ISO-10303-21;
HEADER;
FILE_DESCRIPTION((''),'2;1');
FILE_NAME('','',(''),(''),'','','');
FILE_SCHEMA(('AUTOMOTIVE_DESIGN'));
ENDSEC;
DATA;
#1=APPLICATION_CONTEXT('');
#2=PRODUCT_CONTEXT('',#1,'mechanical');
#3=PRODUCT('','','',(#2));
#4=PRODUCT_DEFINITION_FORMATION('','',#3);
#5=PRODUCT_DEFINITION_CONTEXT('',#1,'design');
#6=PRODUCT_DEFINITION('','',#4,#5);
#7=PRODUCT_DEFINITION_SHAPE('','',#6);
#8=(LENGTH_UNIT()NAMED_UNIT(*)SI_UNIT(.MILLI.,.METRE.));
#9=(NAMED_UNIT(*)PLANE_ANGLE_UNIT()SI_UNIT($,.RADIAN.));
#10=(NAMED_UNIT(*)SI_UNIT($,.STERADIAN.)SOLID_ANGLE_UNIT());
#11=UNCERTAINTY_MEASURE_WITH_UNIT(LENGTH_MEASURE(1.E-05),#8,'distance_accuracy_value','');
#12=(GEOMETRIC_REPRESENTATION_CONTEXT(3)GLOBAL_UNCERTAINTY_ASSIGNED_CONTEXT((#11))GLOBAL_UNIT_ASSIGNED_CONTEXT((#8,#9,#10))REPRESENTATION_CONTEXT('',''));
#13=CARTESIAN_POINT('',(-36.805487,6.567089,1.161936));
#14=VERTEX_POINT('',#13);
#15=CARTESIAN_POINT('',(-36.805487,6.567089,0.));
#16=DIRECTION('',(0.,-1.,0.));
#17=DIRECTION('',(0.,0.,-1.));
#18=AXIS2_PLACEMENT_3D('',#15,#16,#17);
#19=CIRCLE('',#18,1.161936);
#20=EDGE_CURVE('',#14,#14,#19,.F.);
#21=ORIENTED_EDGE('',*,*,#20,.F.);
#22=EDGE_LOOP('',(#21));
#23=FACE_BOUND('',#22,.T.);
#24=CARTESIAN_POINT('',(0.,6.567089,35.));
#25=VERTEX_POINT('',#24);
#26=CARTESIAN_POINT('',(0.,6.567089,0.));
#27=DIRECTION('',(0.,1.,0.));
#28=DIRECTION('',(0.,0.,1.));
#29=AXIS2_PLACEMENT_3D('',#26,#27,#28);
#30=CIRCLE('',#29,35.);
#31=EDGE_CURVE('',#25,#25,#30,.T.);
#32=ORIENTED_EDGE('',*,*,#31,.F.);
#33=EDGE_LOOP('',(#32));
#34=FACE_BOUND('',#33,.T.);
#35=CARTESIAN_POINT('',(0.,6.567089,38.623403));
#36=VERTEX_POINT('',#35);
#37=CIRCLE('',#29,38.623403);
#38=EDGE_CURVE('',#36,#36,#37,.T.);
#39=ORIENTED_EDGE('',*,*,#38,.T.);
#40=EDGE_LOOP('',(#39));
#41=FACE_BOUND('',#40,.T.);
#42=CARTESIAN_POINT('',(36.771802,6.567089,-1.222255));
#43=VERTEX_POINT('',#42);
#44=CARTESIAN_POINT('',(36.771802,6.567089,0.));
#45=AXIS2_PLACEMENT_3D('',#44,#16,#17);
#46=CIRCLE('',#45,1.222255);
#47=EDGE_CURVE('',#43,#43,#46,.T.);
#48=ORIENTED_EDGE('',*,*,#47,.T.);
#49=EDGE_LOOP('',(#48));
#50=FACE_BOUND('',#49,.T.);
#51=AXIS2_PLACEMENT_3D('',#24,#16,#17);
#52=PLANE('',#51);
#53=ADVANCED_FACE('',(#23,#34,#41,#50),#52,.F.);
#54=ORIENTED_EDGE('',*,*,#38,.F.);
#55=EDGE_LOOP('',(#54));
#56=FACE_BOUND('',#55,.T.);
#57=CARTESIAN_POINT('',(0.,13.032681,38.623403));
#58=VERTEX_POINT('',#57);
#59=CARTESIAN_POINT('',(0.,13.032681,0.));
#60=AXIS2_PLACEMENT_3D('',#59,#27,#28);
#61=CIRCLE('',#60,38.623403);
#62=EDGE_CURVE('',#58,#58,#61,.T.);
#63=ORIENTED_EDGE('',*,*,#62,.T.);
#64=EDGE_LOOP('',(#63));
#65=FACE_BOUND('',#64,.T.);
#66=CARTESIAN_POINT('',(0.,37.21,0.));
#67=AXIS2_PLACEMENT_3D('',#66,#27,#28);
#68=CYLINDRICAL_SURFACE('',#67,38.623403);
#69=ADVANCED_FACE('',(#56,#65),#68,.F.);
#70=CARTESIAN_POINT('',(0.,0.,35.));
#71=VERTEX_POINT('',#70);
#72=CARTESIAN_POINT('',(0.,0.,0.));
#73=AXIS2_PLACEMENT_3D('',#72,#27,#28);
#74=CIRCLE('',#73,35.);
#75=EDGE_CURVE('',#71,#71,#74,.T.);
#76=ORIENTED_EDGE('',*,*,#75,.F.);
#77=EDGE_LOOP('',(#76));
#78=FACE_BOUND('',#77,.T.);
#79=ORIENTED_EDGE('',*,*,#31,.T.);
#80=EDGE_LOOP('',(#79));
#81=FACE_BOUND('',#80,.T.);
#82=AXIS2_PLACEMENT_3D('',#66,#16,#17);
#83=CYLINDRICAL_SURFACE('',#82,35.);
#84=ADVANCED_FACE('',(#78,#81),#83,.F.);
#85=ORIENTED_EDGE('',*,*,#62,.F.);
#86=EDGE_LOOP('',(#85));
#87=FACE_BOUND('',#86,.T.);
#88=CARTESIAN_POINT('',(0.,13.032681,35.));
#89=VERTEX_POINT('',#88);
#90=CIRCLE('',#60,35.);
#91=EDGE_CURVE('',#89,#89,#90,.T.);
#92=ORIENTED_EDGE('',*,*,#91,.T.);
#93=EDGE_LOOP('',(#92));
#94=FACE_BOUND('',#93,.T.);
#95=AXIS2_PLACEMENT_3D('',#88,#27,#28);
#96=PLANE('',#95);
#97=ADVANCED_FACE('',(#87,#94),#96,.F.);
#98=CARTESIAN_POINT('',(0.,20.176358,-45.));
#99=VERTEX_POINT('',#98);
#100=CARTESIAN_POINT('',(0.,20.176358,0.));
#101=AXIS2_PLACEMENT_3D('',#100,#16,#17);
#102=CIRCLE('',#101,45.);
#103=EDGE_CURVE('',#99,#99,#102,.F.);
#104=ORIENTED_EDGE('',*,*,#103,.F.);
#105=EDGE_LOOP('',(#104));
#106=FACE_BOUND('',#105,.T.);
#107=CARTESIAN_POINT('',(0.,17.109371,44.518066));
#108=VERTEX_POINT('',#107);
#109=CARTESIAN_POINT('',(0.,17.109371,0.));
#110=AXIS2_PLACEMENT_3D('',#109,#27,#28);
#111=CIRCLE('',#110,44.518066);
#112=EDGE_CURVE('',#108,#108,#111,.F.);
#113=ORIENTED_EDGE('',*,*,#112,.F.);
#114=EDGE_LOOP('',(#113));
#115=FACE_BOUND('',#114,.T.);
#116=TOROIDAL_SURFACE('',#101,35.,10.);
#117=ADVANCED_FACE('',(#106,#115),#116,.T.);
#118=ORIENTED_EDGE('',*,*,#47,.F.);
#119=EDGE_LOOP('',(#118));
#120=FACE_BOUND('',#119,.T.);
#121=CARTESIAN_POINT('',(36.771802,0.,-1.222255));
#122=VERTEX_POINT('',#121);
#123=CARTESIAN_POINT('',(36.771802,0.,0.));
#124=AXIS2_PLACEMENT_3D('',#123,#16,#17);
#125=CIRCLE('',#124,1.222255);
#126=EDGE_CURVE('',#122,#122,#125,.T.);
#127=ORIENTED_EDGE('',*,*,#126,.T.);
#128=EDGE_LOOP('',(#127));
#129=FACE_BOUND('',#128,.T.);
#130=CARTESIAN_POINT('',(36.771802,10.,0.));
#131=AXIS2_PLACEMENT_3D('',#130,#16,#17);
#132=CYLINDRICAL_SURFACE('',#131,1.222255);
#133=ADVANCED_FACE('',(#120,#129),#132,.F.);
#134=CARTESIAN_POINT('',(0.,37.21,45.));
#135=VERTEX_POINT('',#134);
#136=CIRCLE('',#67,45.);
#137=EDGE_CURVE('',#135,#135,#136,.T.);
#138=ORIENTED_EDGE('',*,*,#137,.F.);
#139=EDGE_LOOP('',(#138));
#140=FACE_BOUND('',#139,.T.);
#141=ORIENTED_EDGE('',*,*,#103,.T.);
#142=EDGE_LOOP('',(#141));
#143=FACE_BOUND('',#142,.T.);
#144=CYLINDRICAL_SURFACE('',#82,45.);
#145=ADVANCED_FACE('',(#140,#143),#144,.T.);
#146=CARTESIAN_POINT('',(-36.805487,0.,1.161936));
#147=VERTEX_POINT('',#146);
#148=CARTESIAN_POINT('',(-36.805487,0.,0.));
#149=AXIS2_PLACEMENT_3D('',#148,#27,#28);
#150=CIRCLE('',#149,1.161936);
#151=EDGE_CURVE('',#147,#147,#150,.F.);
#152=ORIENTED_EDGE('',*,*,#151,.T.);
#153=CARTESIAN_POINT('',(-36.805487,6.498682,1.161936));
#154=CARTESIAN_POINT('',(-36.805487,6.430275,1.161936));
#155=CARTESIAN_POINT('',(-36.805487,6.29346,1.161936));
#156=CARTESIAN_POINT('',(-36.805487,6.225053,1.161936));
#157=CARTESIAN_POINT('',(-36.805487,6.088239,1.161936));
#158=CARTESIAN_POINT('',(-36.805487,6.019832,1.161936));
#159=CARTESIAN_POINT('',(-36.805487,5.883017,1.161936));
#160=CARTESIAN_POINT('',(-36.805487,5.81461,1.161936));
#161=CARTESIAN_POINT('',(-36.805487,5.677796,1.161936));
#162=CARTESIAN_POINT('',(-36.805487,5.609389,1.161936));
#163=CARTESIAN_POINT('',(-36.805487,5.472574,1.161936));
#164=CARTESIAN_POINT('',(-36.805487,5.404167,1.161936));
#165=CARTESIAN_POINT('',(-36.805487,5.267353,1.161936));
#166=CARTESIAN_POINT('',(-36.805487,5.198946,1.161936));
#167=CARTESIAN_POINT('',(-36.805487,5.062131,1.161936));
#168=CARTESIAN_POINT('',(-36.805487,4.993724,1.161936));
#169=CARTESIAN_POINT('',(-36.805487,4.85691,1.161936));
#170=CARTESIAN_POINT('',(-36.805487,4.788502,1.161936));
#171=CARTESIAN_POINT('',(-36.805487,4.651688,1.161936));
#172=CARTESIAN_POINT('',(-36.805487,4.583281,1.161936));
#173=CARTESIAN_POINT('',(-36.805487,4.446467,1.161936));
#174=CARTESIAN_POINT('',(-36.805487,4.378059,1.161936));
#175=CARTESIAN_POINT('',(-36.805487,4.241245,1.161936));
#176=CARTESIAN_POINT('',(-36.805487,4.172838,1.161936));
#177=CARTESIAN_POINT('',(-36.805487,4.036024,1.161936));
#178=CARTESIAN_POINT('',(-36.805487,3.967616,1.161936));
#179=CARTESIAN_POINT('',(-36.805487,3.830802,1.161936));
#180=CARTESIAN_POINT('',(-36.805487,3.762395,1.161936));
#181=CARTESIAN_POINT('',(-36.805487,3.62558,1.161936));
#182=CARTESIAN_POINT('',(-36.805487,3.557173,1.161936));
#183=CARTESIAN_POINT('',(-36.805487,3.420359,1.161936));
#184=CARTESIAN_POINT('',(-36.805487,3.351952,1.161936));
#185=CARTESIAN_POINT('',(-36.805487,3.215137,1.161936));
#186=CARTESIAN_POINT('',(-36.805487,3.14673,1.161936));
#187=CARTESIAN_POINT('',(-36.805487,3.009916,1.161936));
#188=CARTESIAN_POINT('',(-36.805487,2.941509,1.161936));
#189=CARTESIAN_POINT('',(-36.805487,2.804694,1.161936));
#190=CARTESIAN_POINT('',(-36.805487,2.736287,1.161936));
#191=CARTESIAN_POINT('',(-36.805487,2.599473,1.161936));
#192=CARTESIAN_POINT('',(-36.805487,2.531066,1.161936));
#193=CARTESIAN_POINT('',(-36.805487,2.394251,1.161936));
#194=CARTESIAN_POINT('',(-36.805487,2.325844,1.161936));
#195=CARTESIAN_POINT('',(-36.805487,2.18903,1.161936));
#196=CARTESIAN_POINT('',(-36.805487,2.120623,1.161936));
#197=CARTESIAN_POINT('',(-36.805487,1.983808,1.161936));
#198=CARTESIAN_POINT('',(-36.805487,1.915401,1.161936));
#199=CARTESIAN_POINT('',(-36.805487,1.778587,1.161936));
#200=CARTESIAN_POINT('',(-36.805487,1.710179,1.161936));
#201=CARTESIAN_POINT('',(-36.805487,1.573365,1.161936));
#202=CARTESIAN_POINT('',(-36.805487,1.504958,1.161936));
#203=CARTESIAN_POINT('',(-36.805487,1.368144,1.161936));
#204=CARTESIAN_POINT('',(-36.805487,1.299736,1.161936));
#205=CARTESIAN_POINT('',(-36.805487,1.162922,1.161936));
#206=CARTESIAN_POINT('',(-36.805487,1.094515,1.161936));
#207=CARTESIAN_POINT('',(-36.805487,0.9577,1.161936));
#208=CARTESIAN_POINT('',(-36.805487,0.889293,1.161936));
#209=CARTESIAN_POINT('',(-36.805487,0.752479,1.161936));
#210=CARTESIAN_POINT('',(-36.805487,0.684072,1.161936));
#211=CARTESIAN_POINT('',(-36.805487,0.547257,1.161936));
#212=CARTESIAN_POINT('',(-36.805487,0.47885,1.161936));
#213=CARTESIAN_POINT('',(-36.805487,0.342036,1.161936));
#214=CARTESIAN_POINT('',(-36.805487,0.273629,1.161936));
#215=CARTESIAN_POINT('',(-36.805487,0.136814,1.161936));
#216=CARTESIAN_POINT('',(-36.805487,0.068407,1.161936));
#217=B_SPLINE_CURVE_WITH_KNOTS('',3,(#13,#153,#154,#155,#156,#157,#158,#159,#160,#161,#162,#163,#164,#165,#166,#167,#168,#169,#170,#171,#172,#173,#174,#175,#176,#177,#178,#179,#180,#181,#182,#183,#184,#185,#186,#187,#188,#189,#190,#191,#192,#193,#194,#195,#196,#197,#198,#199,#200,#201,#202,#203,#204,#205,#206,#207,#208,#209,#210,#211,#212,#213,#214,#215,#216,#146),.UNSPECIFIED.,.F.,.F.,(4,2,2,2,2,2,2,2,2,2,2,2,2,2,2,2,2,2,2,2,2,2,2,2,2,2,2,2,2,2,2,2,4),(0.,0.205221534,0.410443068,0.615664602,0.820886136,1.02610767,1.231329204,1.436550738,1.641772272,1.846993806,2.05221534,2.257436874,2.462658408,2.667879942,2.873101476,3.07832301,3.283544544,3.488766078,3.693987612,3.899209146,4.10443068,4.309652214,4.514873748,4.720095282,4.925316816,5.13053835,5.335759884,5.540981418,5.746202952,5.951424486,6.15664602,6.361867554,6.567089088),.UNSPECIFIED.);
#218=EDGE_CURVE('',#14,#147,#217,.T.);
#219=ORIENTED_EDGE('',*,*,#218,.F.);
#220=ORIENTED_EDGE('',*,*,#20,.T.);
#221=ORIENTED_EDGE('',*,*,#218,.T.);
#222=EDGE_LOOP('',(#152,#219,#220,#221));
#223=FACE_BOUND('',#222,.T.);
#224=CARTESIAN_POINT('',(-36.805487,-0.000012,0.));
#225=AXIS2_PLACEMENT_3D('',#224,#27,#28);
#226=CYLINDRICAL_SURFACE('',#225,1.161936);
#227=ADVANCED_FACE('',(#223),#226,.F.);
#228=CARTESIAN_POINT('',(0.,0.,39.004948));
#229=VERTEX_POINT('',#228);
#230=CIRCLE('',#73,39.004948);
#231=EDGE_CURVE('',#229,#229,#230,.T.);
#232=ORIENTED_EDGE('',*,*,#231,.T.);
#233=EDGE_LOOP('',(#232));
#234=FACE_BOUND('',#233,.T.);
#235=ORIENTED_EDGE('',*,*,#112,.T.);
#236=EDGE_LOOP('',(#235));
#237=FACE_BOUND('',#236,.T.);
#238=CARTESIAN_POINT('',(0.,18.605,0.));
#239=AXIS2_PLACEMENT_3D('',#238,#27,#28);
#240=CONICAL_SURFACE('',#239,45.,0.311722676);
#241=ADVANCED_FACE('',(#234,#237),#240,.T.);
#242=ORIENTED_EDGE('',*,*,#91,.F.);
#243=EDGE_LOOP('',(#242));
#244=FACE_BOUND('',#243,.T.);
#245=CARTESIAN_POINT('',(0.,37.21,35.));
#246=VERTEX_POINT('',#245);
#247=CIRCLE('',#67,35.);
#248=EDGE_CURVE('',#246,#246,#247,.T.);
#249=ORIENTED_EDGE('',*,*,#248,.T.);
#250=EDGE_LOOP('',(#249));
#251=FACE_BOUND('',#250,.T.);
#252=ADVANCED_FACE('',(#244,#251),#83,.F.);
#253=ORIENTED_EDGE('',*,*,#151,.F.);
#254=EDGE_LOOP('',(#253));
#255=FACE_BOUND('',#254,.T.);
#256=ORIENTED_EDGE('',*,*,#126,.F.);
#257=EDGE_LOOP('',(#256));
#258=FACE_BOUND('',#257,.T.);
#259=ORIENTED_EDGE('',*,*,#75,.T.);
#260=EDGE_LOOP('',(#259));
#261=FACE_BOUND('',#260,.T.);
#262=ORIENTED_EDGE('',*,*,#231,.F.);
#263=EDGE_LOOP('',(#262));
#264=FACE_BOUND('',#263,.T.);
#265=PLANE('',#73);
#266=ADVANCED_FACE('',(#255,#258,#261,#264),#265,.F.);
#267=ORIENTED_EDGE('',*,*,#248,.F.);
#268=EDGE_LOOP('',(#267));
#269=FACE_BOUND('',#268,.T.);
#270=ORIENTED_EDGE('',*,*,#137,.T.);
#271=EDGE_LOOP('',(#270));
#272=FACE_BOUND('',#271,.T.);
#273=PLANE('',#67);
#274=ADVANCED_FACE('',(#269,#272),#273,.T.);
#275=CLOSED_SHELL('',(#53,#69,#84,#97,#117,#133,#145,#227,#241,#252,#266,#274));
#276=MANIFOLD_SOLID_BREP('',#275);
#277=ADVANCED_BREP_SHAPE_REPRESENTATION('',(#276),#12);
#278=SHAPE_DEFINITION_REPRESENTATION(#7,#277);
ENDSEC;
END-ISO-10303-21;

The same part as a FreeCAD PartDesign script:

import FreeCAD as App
import Part
import Sketcher
from FreeCAD import Vector


def edges_at(feature, points):
    """Names of the edges that pass closest to the given points."""
    edges = feature.Shape.Edges
    near = lambda p: min(range(len(edges)), key=lambda i: edges[i].distToShape(Part.Vertex(*p))[0])
    return sorted({f"Edge{near(p) + 1}" for p in points})


def add_polygon(sketch, points):
    """Adds a closed chain of lines whose ends are joined by coincident constraints."""
    first, n = sketch.GeometryCount, len(points)
    for a, b in zip(points, points[1:] + points[:1]):
        sketch.addGeometry(Part.LineSegment(App.Vector(*a, 0), App.Vector(*b, 0)), False)
    for i in range(n):
        sketch.addConstraint(Sketcher.Constraint("Coincident", first + i, 2, first + (i + 1) % n, 1))

doc = App.newDocument("Part")
body = doc.addObject("PartDesign::Body", "Body")

sketch1 = body.newObject("Sketcher::SketchObject", "Sketch")
sketch1.AttachmentSupport = (doc.getObject("XZ_Plane"), [""])
sketch1.MapMode = "FlatFace"
sketch1.addGeometry([
    Part.Circle(Vector(0, 0, 0), Vector(0, 0, 1), 45),
    Part.Circle(Vector(0, 0, 0), Vector(0, 0, 1), 35),
], False)
sketch1.addConstraint([
    Sketcher.Constraint("Coincident", 0, 3, -1, 1),
    Sketcher.Constraint("Coincident", 1, 3, -1, 1),
    Sketcher.Constraint("Diameter", 0, 90.0),
    Sketcher.Constraint("Diameter", 1, 70.0),
])
pad1 = body.newObject("PartDesign::Pad", "Pad")
pad1.Profile = sketch1
pad1.Length = 37.21
pad1.Reversed = True

sketch2 = body.newObject("Sketcher::SketchObject", "Sketch001")
sketch2.AttachmentSupport = (doc.getObject("YZ_Plane"), [""])
sketch2.MapMode = "FlatFace"
add_polygon(sketch2, [(19, -45), (0, -39), (0, -45)])
sketch2.addConstraint([
    Sketcher.Constraint("Vertical", 1),
    Sketcher.Constraint("Horizontal", 2),
    Sketcher.Constraint("PointOnObject", 0, 2, -2),
    Sketcher.Constraint("DistanceY", 1, 2, -1, 1, 45.0),
    Sketcher.Constraint("DistanceX", 2, 1, 2, 2, 18.605),
    Sketcher.Constraint("DistanceY", 1, 2, 1, 1, 5.995052),
])
groove = body.newObject("PartDesign::Groove", "Groove")
groove.Profile = sketch2
groove.ReferenceAxis = (sketch2, ["H_Axis"])
groove.Angle = 360
doc.recompute()

fillet = body.newObject("PartDesign::Fillet", "Fillet")
fillet.Base = (groove, edges_at(groove, [(0, 18.605, -45)]))
fillet.Radius = 10

sketch3 = body.newObject("Sketcher::SketchObject", "Sketch002")
sketch3.AttachmentSupport = (doc.getObject("YZ_Plane"), [""])
sketch3.MapMode = "FlatFace"
add_polygon(sketch3, [(13, 38.6), (6.6, 38.6), (6.6, 35), (13, 35)])
sketch3.addConstraint([
    Sketcher.Constraint("Horizontal", 0),
    Sketcher.Constraint("Vertical", 1),
    Sketcher.Constraint("Horizontal", 2),
    Sketcher.Constraint("Vertical", 3),
    Sketcher.Constraint("DistanceY", -1, 1, 1, 2, 35.0),
    Sketcher.Constraint("DistanceX", 0, 2, 0, 1, 6.465592),
    Sketcher.Constraint("DistanceY", 1, 2, 1, 1, 3.623403),
    Sketcher.Constraint("DistanceX", -1, 1, 0, 2, 6.567089),
])
groove2 = body.newObject("PartDesign::Groove", "Groove001")
groove2.Profile = sketch3
groove2.ReferenceAxis = (sketch3, ["H_Axis"])
groove2.Angle = 360

sketch4 = body.newObject("Sketcher::SketchObject", "Sketch003")
sketch4.AttachmentSupport = (doc.getObject("XZ_Plane"), [""])
sketch4.MapMode = "FlatFace"
sketch4.addGeometry(Part.Circle(Vector(-36.8, 0, 0), Vector(0, 0, 1), 1.2), False)
sketch4.addConstraint([
    Sketcher.Constraint("PointOnObject", 0, 3, -1),
    Sketcher.Constraint("Diameter", 0, 2.323873),
    Sketcher.Constraint("DistanceX", 0, 3, -1, 1, 36.805487),
])
pocket1 = body.newObject("PartDesign::Pocket", "Pocket")
pocket1.Profile = sketch4
pocket1.Type = "TwoLengths"
pocket1.Length = 74.719633
pocket1.Length2 = 10
pocket1.Reversed = True

sketch5 = body.newObject("Sketcher::SketchObject", "Sketch004")
sketch5.AttachmentSupport = (doc.getObject("XZ_Plane"), [""])
sketch5.MapMode = "FlatFace"
sketch5.addGeometry(Part.Circle(Vector(36.8, 0, 0), Vector(0, 0, 1), 1.2), False)
sketch5.addConstraint([
    Sketcher.Constraint("PointOnObject", 0, 3, -1),
    Sketcher.Constraint("Diameter", 0, 2.44451),
    Sketcher.Constraint("DistanceX", -1, 1, 0, 3, 36.771802),
])
pocket2 = body.newObject("PartDesign::Pocket", "Pocket001")
pocket2.Profile = sketch5
pocket2.Length = 10

doc.recompute()
